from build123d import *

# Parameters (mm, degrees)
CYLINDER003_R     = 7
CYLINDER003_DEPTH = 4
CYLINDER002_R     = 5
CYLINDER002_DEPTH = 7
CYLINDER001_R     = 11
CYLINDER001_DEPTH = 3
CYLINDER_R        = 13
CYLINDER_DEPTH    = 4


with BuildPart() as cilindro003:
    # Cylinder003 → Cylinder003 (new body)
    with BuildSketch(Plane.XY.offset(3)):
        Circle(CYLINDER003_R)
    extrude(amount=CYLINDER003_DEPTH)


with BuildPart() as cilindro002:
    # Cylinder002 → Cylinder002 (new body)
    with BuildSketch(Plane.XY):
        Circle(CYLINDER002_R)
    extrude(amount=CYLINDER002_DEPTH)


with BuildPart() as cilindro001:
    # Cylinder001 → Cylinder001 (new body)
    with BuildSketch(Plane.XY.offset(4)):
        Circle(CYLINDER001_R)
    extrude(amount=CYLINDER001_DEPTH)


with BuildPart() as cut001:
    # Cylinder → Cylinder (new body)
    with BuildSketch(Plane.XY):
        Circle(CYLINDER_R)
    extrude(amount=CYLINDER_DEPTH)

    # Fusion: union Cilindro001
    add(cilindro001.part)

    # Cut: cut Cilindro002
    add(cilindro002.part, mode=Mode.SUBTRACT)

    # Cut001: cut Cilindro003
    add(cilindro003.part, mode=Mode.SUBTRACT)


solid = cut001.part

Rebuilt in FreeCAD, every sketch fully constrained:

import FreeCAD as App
import Part
import Sketcher

doc = App.newDocument("Part")
body = doc.addObject("PartDesign::Body", "Body")

# Sketch on XY plane
sketch1 = body.newObject("Sketcher::SketchObject", "Sketch")
sketch1.AttachmentSupport = (doc.getObject("XY_Plane"), [""])
sketch1.MapMode = "FlatFace"
sketch1.AttachmentOffset = App.Placement(App.Vector(0, 0, 3), App.Rotation())
sketch1.addGeometry(Part.Circle(App.Vector(0, 0, 0), App.Vector(0, 0, 1), 7), False)
sketch1.addConstraint(Sketcher.Constraint("Coincident", 0, 3, -1, 1))
sketch1.addConstraint(Sketcher.Constraint("Diameter", 0, 14.0))
pad1 = body.newObject("PartDesign::Pad", "Pad")
pad1.Profile = sketch1
pad1.Length = 4
body2 = doc.addObject("PartDesign::Body", "Body001")

# Sketch on XY plane
sketch2 = body2.newObject("Sketcher::SketchObject", "Sketch001")
sketch2.AttachmentSupport = (doc.getObject("XY_Plane001"), [""])
sketch2.MapMode = "FlatFace"
sketch2.addGeometry(Part.Circle(App.Vector(0, 0, 0), App.Vector(0, 0, 1), 5), False)
sketch2.addConstraint(Sketcher.Constraint("Coincident", 0, 3, -1, 1))
sketch2.addConstraint(Sketcher.Constraint("Diameter", 0, 10.0))
pad2 = body2.newObject("PartDesign::Pad", "Pad001")
pad2.Profile = sketch2
pad2.Length = 7
body3 = doc.addObject("PartDesign::Body", "Body002")

# Sketch on XY plane
sketch3 = body3.newObject("Sketcher::SketchObject", "Sketch002")
sketch3.AttachmentSupport = (doc.getObject("XY_Plane002"), [""])
sketch3.MapMode = "FlatFace"
sketch3.AttachmentOffset = App.Placement(App.Vector(0, 0, 4), App.Rotation())
sketch3.addGeometry(Part.Circle(App.Vector(0, 0, 0), App.Vector(0, 0, 1), 11), False)
sketch3.addConstraint(Sketcher.Constraint("Coincident", 0, 3, -1, 1))
sketch3.addConstraint(Sketcher.Constraint("Diameter", 0, 22.0))
pad3 = body3.newObject("PartDesign::Pad", "Pad002")
pad3.Profile = sketch3
pad3.Length = 3
body4 = doc.addObject("PartDesign::Body", "Body003")

# Sketch on XY plane
sketch4 = body4.newObject("Sketcher::SketchObject", "Sketch003")
sketch4.AttachmentSupport = (doc.getObject("XY_Plane003"), [""])
sketch4.MapMode = "FlatFace"
sketch4.addGeometry(Part.Circle(App.Vector(0, 0, 0), App.Vector(0, 0, 1), 13), False)
sketch4.addConstraint(Sketcher.Constraint("Coincident", 0, 3, -1, 1))
sketch4.addConstraint(Sketcher.Constraint("Diameter", 0, 26.0))
pad4 = body4.newObject("PartDesign::Pad", "Pad003")
pad4.Profile = sketch4
pad4.Length = 4
doc.recompute()

boolean = body4.newObject("PartDesign::Boolean", "Boolean")
boolean.Type = "Fuse"
boolean.addObjects([body3])
doc.recompute()

boolean2 = body4.newObject("PartDesign::Boolean", "Boolean001")
boolean2.Type = "Cut"
boolean2.addObjects([body2])
doc.recompute()

boolean3 = body4.newObject("PartDesign::Boolean", "Boolean002")
boolean3.Type = "Cut"
boolean3.addObjects([body])

doc.recompute()
